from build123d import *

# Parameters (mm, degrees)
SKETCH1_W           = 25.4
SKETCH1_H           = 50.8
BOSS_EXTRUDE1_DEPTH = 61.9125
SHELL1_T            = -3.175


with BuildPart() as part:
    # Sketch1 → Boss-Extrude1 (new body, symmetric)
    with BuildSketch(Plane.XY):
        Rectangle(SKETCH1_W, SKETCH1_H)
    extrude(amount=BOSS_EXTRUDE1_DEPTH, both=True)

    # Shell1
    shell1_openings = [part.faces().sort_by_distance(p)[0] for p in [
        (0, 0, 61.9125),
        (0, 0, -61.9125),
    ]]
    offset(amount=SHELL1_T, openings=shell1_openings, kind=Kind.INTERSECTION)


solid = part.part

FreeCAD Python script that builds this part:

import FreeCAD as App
import Part
import Sketcher

V = App.Vector
Q = App.Units.Quantity


def faces_at(feature, points):
    """Names of the faces that lie closest to the given points."""
    faces = feature.Shape.Faces
    near = lambda p: min(range(len(faces)), key=lambda i: faces[i].distToShape(Part.Vertex(*p))[0])
    return sorted({f"Face{near(p) + 1}" for p in points})

doc = App.newDocument("Part")
body = doc.addObject("PartDesign::Body", "Body")

# Sketch on XY plane
sketch1 = doc.addObject("Sketcher::SketchObject", "Sketch")
body.addObject(sketch1)
sketch1.AttachmentSupport = (doc.XY_Plane, [""])
sketch1.MapMode = "FlatFace"
sketch1.addGeometry(Part.LineSegment(V(-13, 25, 0), V(-13, -25, 0)), False)
sketch1.addGeometry(Part.LineSegment(V(-13, -25, 0), V(13, -25, 0)), False)
sketch1.addGeometry(Part.LineSegment(V(13, -25, 0), V(13, 25, 0)), False)
sketch1.addGeometry(Part.LineSegment(V(13, 25, 0), V(-13, 25, 0)), False)
sketch1.addConstraint(Sketcher.Constraint("Coincident", 0, 2, 1, 1))
sketch1.addConstraint(Sketcher.Constraint("Coincident", 1, 2, 2, 1))
sketch1.addConstraint(Sketcher.Constraint("Coincident", 2, 2, 3, 1))
sketch1.addConstraint(Sketcher.Constraint("Coincident", 3, 2, 0, 1))
sketch1.addConstraint(Sketcher.Constraint("Vertical", 0))
sketch1.addConstraint(Sketcher.Constraint("Horizontal", 1))
sketch1.addConstraint(Sketcher.Constraint("Vertical", 2))
sketch1.addConstraint(Sketcher.Constraint("Horizontal", 3))
sketch1.addConstraint(Sketcher.Constraint("Symmetric", 0, 2, 2, 2, -1, 1))
sketch1.addConstraint(Sketcher.Constraint("DistanceX", 1, 1, 1, 2, Q("1 in")))
sketch1.addConstraint(Sketcher.Constraint("DistanceY", 0, 2, 0, 1, Q("2 in")))
pad1 = doc.addObject("PartDesign::Pad", "Pad")
body.addObject(pad1)
pad1.Profile = sketch1
pad1.Length = Q("4.875 in")
pad1.Midplane = True
doc.recompute()

thickness = doc.addObject("PartDesign::Thickness", "Thickness")
body.addObject(thickness)
thickness.Base = (pad1, faces_at(pad1, [(0, 0, 61.913), (0, 0, -61.913)]))
thickness.Value = Q("0.125 in")
thickness.Reversed = True
thickness.Join = "Intersection"

doc.recompute()
